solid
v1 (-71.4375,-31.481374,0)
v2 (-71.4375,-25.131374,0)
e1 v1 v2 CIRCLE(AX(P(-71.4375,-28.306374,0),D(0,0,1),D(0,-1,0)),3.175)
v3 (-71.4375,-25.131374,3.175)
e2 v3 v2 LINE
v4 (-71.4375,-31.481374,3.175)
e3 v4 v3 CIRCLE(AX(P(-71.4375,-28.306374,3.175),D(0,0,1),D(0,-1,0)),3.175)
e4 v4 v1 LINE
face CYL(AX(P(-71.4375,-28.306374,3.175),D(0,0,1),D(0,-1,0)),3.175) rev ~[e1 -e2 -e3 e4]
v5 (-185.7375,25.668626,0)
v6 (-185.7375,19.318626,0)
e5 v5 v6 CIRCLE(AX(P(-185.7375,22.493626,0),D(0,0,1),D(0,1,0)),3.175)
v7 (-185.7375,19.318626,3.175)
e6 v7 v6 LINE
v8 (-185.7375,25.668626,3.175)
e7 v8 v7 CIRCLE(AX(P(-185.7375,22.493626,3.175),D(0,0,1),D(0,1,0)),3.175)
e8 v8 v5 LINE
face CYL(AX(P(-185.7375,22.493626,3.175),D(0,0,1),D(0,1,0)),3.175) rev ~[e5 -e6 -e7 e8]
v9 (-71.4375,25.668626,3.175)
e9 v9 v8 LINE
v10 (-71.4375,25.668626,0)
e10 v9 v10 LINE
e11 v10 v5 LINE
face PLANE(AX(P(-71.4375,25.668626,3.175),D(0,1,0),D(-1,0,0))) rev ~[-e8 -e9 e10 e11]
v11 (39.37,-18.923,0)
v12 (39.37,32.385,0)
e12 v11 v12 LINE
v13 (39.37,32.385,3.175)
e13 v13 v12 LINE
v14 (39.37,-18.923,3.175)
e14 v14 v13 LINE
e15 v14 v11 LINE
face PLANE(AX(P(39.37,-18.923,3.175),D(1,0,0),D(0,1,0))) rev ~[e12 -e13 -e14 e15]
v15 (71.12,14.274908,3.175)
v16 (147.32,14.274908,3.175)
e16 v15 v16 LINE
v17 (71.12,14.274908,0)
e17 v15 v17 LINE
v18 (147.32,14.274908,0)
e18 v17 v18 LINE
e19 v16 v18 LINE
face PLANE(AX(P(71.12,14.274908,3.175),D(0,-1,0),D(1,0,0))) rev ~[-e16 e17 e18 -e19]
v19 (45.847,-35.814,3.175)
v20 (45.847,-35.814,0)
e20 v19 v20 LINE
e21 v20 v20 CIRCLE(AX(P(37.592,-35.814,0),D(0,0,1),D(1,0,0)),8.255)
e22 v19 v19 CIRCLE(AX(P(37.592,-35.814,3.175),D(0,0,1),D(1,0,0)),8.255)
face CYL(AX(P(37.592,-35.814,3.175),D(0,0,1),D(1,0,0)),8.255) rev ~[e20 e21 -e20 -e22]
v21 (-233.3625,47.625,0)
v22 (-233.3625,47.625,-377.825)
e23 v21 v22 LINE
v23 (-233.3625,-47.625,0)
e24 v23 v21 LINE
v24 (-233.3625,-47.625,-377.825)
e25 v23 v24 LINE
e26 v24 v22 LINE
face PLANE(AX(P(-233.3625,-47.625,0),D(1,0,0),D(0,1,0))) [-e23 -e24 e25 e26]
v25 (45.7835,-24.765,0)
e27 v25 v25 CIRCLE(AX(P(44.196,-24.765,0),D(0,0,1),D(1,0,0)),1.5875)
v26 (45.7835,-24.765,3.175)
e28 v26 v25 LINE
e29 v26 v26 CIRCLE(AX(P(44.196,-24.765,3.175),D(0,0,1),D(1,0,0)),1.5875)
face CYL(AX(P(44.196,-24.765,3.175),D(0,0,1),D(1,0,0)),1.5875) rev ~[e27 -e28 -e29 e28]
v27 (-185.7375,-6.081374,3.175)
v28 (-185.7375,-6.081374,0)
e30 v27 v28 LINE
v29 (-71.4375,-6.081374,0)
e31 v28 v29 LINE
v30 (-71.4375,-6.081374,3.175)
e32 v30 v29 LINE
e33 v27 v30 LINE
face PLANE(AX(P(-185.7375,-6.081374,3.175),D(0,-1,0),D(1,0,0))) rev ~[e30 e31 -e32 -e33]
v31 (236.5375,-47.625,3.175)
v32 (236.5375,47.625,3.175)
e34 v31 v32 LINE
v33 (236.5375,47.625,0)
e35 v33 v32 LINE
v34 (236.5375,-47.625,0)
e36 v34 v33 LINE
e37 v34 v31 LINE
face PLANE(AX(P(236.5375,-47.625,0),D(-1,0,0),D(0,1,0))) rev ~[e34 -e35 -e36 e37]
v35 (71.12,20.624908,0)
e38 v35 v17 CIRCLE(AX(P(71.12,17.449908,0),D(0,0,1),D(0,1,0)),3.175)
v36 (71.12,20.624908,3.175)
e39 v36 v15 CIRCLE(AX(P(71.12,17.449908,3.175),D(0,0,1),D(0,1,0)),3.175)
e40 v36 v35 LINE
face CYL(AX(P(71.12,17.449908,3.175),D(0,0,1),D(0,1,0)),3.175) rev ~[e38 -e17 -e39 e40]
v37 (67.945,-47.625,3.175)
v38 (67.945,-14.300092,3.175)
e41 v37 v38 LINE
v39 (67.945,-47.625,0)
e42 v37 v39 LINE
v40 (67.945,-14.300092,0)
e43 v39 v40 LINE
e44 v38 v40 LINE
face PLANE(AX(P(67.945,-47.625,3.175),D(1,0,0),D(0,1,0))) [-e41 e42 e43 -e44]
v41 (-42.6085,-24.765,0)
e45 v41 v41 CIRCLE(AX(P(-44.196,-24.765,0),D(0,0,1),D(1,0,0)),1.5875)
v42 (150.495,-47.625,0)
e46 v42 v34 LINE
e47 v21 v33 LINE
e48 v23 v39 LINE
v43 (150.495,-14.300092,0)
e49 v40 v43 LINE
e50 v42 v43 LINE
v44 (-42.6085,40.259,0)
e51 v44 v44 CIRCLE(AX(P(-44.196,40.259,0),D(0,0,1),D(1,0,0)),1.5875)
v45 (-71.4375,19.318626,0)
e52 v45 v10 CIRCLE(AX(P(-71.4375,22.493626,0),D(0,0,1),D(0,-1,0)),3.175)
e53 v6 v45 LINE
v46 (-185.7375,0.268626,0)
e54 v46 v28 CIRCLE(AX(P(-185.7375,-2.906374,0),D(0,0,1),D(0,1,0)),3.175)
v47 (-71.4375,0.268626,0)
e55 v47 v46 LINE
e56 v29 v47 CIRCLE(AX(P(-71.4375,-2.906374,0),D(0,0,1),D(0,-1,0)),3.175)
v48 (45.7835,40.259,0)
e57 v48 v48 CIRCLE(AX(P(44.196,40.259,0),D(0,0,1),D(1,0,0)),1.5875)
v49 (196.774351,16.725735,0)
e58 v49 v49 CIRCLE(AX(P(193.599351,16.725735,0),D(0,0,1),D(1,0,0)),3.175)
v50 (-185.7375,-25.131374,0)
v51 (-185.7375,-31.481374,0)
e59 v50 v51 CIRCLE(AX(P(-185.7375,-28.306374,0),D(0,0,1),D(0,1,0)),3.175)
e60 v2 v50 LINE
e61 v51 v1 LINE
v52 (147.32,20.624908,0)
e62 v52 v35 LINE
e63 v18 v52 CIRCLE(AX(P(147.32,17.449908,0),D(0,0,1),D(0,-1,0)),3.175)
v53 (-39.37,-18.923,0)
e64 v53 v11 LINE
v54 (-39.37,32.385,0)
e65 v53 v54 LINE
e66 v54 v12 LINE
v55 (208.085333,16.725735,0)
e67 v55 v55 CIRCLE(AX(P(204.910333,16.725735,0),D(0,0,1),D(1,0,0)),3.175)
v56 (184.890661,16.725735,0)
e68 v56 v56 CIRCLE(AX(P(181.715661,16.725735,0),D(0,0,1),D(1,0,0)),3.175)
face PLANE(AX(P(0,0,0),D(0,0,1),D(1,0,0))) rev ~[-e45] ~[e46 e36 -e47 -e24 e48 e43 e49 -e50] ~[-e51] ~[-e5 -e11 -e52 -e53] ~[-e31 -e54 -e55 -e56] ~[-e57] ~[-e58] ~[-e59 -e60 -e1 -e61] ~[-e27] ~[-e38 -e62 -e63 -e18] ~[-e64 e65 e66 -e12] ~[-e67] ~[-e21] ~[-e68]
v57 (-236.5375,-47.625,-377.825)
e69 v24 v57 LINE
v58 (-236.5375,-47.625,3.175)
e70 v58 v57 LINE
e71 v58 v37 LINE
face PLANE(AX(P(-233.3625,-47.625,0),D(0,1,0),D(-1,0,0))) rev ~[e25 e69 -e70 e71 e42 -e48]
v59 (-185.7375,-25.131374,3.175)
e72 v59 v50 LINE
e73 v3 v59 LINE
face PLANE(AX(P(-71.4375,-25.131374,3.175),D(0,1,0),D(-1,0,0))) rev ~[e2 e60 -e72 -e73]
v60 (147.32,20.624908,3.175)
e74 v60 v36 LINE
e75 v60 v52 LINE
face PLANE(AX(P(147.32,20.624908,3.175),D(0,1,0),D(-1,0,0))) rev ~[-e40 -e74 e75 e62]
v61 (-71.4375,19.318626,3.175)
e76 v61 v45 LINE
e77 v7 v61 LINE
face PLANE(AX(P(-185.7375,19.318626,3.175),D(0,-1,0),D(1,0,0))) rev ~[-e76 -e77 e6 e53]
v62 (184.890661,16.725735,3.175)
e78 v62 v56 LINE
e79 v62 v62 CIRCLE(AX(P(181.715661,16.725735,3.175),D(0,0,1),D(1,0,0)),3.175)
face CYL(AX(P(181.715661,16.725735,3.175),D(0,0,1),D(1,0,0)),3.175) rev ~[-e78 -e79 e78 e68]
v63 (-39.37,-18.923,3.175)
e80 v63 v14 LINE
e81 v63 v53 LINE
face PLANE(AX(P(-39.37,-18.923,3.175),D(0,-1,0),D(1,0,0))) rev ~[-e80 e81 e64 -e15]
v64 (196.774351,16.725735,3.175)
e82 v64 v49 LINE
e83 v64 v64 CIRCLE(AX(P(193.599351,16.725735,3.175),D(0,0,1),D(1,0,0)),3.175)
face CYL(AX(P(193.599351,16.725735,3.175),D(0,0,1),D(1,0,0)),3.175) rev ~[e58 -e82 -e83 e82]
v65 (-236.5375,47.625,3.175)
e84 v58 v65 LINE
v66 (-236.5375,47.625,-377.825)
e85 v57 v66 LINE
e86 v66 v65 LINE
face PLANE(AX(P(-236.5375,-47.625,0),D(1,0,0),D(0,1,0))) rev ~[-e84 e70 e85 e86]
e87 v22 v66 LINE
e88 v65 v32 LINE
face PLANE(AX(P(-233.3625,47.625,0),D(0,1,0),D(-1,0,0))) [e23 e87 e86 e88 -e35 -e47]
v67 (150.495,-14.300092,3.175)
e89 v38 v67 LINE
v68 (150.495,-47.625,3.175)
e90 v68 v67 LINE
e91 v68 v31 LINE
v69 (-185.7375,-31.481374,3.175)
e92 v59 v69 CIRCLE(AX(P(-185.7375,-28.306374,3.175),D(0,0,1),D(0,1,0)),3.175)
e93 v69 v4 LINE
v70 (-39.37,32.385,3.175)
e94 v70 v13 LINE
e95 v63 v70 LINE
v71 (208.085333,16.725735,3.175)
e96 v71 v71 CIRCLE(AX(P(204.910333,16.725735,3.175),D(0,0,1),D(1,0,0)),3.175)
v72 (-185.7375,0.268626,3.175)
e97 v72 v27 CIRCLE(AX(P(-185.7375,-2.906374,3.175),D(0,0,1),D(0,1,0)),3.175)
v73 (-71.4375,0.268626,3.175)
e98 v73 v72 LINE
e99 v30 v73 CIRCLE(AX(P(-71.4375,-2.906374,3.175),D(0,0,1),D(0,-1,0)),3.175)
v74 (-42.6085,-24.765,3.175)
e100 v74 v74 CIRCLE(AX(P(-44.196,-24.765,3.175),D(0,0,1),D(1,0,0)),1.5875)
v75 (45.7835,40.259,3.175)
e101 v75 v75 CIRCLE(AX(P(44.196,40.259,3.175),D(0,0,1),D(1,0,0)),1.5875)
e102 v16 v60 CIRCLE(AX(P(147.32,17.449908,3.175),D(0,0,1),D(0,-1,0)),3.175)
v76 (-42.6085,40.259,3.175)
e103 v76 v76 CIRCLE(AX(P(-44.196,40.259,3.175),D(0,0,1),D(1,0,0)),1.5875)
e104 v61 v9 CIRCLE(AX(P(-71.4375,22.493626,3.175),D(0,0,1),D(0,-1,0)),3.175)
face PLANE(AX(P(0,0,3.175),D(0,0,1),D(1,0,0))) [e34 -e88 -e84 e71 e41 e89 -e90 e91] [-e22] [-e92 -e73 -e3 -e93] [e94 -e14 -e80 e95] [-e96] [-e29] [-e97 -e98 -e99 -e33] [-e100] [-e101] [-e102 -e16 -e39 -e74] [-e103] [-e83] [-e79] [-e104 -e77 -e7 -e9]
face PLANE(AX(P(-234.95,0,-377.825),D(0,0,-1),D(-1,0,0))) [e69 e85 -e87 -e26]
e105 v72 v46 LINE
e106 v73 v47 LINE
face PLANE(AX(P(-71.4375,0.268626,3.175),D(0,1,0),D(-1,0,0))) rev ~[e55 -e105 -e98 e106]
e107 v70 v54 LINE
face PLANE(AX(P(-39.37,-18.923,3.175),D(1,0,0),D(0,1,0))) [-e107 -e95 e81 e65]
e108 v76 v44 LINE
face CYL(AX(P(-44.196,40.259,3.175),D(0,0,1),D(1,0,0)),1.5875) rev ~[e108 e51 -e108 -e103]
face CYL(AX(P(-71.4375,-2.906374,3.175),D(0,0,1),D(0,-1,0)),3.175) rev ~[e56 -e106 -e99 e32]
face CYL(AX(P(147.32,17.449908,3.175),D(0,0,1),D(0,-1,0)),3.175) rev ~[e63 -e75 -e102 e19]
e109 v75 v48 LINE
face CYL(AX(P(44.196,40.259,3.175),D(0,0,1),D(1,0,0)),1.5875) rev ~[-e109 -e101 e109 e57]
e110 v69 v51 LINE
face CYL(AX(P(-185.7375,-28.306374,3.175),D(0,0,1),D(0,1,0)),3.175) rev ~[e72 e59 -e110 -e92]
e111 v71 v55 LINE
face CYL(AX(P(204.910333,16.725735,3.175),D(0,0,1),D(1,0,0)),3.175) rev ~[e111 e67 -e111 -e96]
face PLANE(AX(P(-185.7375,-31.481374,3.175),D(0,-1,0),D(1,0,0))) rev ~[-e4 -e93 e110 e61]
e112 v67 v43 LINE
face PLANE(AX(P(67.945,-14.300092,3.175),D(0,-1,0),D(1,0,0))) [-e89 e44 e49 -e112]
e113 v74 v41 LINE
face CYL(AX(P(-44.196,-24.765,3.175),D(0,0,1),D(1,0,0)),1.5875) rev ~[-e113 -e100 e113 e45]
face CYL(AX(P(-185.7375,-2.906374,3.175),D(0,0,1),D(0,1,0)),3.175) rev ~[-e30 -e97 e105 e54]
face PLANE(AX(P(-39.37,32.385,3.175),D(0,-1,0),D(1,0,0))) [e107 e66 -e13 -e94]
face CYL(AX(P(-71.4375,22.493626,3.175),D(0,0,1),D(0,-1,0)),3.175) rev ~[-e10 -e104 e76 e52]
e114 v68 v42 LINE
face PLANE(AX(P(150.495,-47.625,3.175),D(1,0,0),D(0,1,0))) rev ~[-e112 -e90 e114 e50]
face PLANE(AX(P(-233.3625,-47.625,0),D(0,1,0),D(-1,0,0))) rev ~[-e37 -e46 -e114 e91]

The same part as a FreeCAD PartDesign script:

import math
import FreeCAD as App
import Part
import Sketcher
Q = App.Units.Quantity


def add_polygon(sketch, points):
    """Adds a closed chain of lines whose ends are joined by coincident constraints."""
    first, n = sketch.GeometryCount, len(points)
    for a, b in zip(points, points[1:] + points[:1]):
        sketch.addGeometry(Part.LineSegment(App.Vector(*a, 0), App.Vector(*b, 0)), False)
    for i in range(n):
        sketch.addConstraint(Sketcher.Constraint("Coincident", first + i, 2, first + (i + 1) % n, 1))

doc = App.newDocument("Part")
body = doc.addObject("PartDesign::Body", "Body")

sketch1 = body.newObject("Sketcher::SketchObject", "Sketch")
sketch1.AttachmentSupport = (doc.getObject("XY_Plane"), [""])
sketch1.MapMode = "FlatFace"
add_polygon(sketch1, [(-237, 48), (-237, -48), (237, -48), (237, 48)])
sketch1.addConstraint([
    Sketcher.Constraint("Vertical", 0),
    Sketcher.Constraint("Horizontal", 1),
    Sketcher.Constraint("Vertical", 2),
    Sketcher.Constraint("Horizontal", 3),
    Sketcher.Constraint("Symmetric", 0, 2, 2, 2, -1, 1),
    Sketcher.Constraint("DistanceY", 0, 2, 0, 1, Q("3.75 in")),
    Sketcher.Constraint("DistanceX", 1, 1, 1, 2, Q("18.625 in")),
])
pad1 = body.newObject("PartDesign::Pad", "Pad")
pad1.Profile = sketch1
pad1.Length = Q("0.125 in")

sketch2 = body.newObject("Sketcher::SketchObject", "Sketch001")
sketch2.AttachmentSupport = (doc.getObject("XY_Plane"), [""])
sketch2.MapMode = "FlatFace"
sketch2.AttachmentOffset = App.Placement(App.Vector(0, 0, 0.125 * 25.4), App.Rotation())
add_polygon(sketch2, [(-39, 32), (-39, -19), (39, -19), (39, 32)])
sketch2.addConstraint([
    Sketcher.Constraint("Vertical", 0),
    Sketcher.Constraint("Horizontal", 1),
    Sketcher.Constraint("Vertical", 2),
    Sketcher.Constraint("Horizontal", 3),
    Sketcher.Constraint("DistanceX", 1, 1, 1, 2, Q("3.1 in")),
    Sketcher.Constraint("DistanceY", 0, 2, 0, 1, Q("2.02 in")),
    Sketcher.Constraint("DistanceX", 0, 2, -1, 1, Q("1.55 in")),
    Sketcher.Constraint("DistanceY", 0, 2, -1, 1, Q("0.745 in")),
])
pocket1 = body.newObject("PartDesign::Pocket", "Pocket")
pocket1.Profile = sketch2
pocket1.Type = "ThroughAll"

sketch3 = body.newObject("Sketcher::SketchObject", "Sketch002")
sketch3.AttachmentSupport = (doc.getObject("XY_Plane"), [""])
sketch3.MapMode = "FlatFace"
sketch3.AttachmentOffset = App.Placement(App.Vector(0, 0, 0.125 * 25.4), App.Rotation())
sketch3.addGeometry(Part.Circle(App.Vector(38, -36, 0), App.Vector(0, 0, 1), 8), False)
sketch3.addConstraint([
    Sketcher.Constraint("Diameter", 0, Q("0.65 in")),
    Sketcher.Constraint("DistanceX", -1, 1, 0, 3, Q("1.48 in")),
    Sketcher.Constraint("DistanceY", 0, 3, -1, 1, Q("1.41 in")),
])
pocket2 = body.newObject("PartDesign::Pocket", "Pocket001")
pocket2.Profile = sketch3
pocket2.Type = "ThroughAll"

sketch4 = body.newObject("Sketcher::SketchObject", "Sketch003")
sketch4.AttachmentSupport = (doc.getObject("XY_Plane"), [""])
sketch4.MapMode = "FlatFace"
sketch4.AttachmentOffset = App.Placement(App.Vector(0, 0, 0.125 * 25.4), App.Rotation())
sketch4.addGeometry([
    Part.Circle(App.Vector(-44.2, 40.3, 0), App.Vector(0, 0, 1), 1.6),
    Part.Circle(App.Vector(44.2, 40.3, 0), App.Vector(0, 0, 1), 1.6),
    Part.Circle(App.Vector(-44.2, -24.8, 0), App.Vector(0, 0, 1), 1.6),
    Part.Circle(App.Vector(44.2, -24.8, 0), App.Vector(0, 0, 1), 1.6),
], False)
sketch4.addConstraint([
    Sketcher.Constraint("Equal", 0, 1),
    Sketcher.Constraint("Equal", 1, 2),
    Sketcher.Constraint("Equal", 2, 3),
    Sketcher.Constraint("Symmetric", 0, 3, 1, 3, -2),
    Sketcher.Constraint("Symmetric", 2, 3, 3, 3, -2),
    Sketcher.Constraint("Vertical", 0, 3, 2, 3),
    Sketcher.Constraint("Diameter", 0, Q("0.125 in")),
    Sketcher.Constraint("DistanceX", 0, 3, -1, 1, Q("1.74 in")),
    Sketcher.Constraint("DistanceY", 2, 3, 0, 3, Q("2.56 in")),
    Sketcher.Constraint("DistanceY", -1, 1, 0, 3, Q("1.585 in")),
])
pocket3 = body.newObject("PartDesign::Pocket", "Pocket002")
pocket3.Profile = sketch4
pocket3.Type = "ThroughAll"

sketch5 = body.newObject("Sketcher::SketchObject", "Sketch004")
sketch5.AttachmentSupport = (doc.getObject("XY_Plane"), [""])
sketch5.MapMode = "FlatFace"
add_polygon(sketch5, [(-233.4, 47.6), (-233.4, -47.6), (-236.5, -47.6), (-236.5, 47.6)])
sketch5.addConstraint([
    Sketcher.Constraint("Vertical", 0),
    Sketcher.Constraint("Horizontal", 1),
    Sketcher.Constraint("Vertical", 2),
    Sketcher.Constraint("Horizontal", 3),
    Sketcher.Constraint("DistanceY", 0, 2, 0, 1, Q("3.75 in")),
    Sketcher.Constraint("DistanceX", 1, 2, 1, 1, Q("0.125 in")),
    Sketcher.Constraint("DistanceX", 0, 2, -1, 1, Q("9.1875 in")),
    Sketcher.Constraint("DistanceY", 0, 2, -1, 1, Q("1.875 in")),
])
pad2 = body.newObject("PartDesign::Pad", "Pad001")
pad2.Profile = sketch5
pad2.Length = Q("14.875 in")
pad2.Reversed = True

sketch6 = body.newObject("Sketcher::SketchObject", "Sketch005")
sketch6.AttachmentSupport = (doc.getObject("XY_Plane"), [""])
sketch6.MapMode = "FlatFace"
sketch6.AttachmentOffset = App.Placement(App.Vector(0, 0, 0.125 * 25.4), App.Rotation())
add_polygon(sketch6, [(67.9, -14.3), (67.9, -47.6), (150.5, -47.6), (150.5, -14.3)])
sketch6.addGeometry(Part.LineSegment(App.Vector(71.1, 14.3, 0), App.Vector(147.3, 14.3, 0)), False)
sketch6.addGeometry(Part.ArcOfCircle(Part.Circle(App.Vector(147.3, 17.4, 0), App.Vector(0, 0, 1), 3.2), math.radians(-90), math.radians(90)), False)
sketch6.addGeometry(Part.LineSegment(App.Vector(147.3, 20.6, 0), App.Vector(71.1, 20.6, 0)), False)
sketch6.addGeometry(Part.ArcOfCircle(Part.Circle(App.Vector(71.1, 17.4, 0), App.Vector(0, 0, 1), 3.2), math.radians(90), math.radians(270)), False)
sketch6.addGeometry(Part.LineSegment(App.Vector(-185.7, 19.3, 0), App.Vector(-71.4, 19.3, 0)), False)
sketch6.addGeometry(Part.ArcOfCircle(Part.Circle(App.Vector(-71.4, 22.5, 0), App.Vector(0, 0, 1), 3.2), math.radians(-90), math.radians(90)), False)
sketch6.addGeometry(Part.LineSegment(App.Vector(-71.4, 25.7, 0), App.Vector(-185.7, 25.7, 0)), False)
sketch6.addGeometry(Part.ArcOfCircle(Part.Circle(App.Vector(-185.7, 22.5, 0), App.Vector(0, 0, 1), 3.2), math.radians(90), math.radians(270)), False)
sketch6.addGeometry(Part.LineSegment(App.Vector(-185.7, -6.1, 0), App.Vector(-71.4, -6.1, 0)), False)
sketch6.addGeometry(Part.ArcOfCircle(Part.Circle(App.Vector(-71.4, -2.9, 0), App.Vector(0, 0, 1), 3.2), math.radians(-90), math.radians(90)), False)
sketch6.addGeometry(Part.LineSegment(App.Vector(-71.4, 0.3, 0), App.Vector(-185.7, 0.3, 0)), False)
sketch6.addGeometry(Part.ArcOfCircle(Part.Circle(App.Vector(-185.7, -2.9, 0), App.Vector(0, 0, 1), 3.2), math.radians(90), math.radians(270)), False)
sketch6.addGeometry(Part.LineSegment(App.Vector(-185.7, -31.5, 0), App.Vector(-71.4, -31.5, 0)), False)
sketch6.addGeometry(Part.ArcOfCircle(Part.Circle(App.Vector(-71.4, -28.3, 0), App.Vector(0, 0, 1), 3.2), math.radians(-90), math.radians(90)), False)
sketch6.addGeometry(Part.LineSegment(App.Vector(-71.4, -25.1, 0), App.Vector(-185.7, -25.1, 0)), False)
sketch6.addGeometry(Part.ArcOfCircle(Part.Circle(App.Vector(-185.7, -28.3, 0), App.Vector(0, 0, 1), 3.2), math.radians(90), math.radians(270)), False)
sketch6.addConstraint([
    Sketcher.Constraint("Tangent", 4, 2, 5, 1),
    Sketcher.Constraint("Tangent", 5, 2, 6, 1),
    Sketcher.Constraint("Tangent", 6, 2, 7, 1),
    Sketcher.Constraint("Tangent", 7, 2, 4, 1),
    Sketcher.Constraint("Tangent", 8, 2, 9, 1),
    Sketcher.Constraint("Tangent", 9, 2, 10, 1),
    Sketcher.Constraint("Tangent", 10, 2, 11, 1),
    Sketcher.Constraint("Tangent", 11, 2, 8, 1),
    Sketcher.Constraint("Tangent", 12, 2, 13, 1),
    Sketcher.Constraint("Tangent", 13, 2, 14, 1),
    Sketcher.Constraint("Tangent", 14, 2, 15, 1),
    Sketcher.Constraint("Tangent", 15, 2, 12, 1),
    Sketcher.Constraint("Tangent", 16, 2, 17, 1),
    Sketcher.Constraint("Tangent", 17, 2, 18, 1),
    Sketcher.Constraint("Tangent", 18, 2, 19, 1),
    Sketcher.Constraint("Tangent", 19, 2, 16, 1),
    Sketcher.Constraint("Vertical", 0),
    Sketcher.Constraint("Horizontal", 1),
    Sketcher.Constraint("Vertical", 2),
    Sketcher.Constraint("Horizontal", 3),
    Sketcher.Constraint("Horizontal", 4),
    Sketcher.Constraint("Horizontal", 6),
    Sketcher.Constraint("Horizontal", 8),
    Sketcher.Constraint("Horizontal", 10),
    Sketcher.Constraint("Horizontal", 12),
    Sketcher.Constraint("Horizontal", 14),
    Sketcher.Constraint("Horizontal", 16),
    Sketcher.Constraint("Horizontal", 18),
    Sketcher.Constraint("Equal", 7, 9),
    Sketcher.Constraint("Equal", 11, 13),
    Sketcher.Constraint("Equal", 15, 17),
    Sketcher.Constraint("Vertical", 9, 3, 13, 3),
    Sketcher.Constraint("Vertical", 11, 3, 15, 3),
    Sketcher.Constraint("Vertical", 13, 3, 17, 3),
    Sketcher.Constraint("Vertical", 15, 3, 19, 3),
    Sketcher.Constraint("DistanceX", 4, 1, 4, 2, Q("3 in")),
    Sketcher.Constraint("DistanceX", 8, 1, 8, 2, Q("4.5 in")),
    Sketcher.Constraint("Radius", 5, Q("0.125 in")),
    Sketcher.Constraint("DistanceY", 13, 3, 9, 3, Q("1 in")),
    Sketcher.Constraint("DistanceY", 17, 3, 13, 3, Q("1 in")),
    Sketcher.Constraint("DistanceX", 1, 1, 1, 2, Q("3.25 in")),
    Sketcher.Constraint("DistanceX", -1, 1, 5, 3, Q("5.8 in")),
    Sketcher.Constraint("DistanceY", 2, 2, 5, 3, Q("1.25 in")),
    Sketcher.Constraint("DistanceX", 9, 3, -1, 1, Q("2.8125 in")),
    Sketcher.Constraint("DistanceX", -1, 1, 0, 2, Q("2.675 in")),
    Sketcher.Constraint("DistanceY", 0, 2, -1, 1, Q("1.875 in")),
    Sketcher.Constraint("DistanceY", 0, 2, 0, 1, 33.324908),
    Sketcher.Constraint("DistanceY", -1, 1, 9, 3, 22.493626),
])
pocket4 = body.newObject("PartDesign::Pocket", "Pocket003")
pocket4.Profile = sketch6
pocket4.Length = Q("1.16 in")

sketch7 = body.newObject("Sketcher::SketchObject", "Sketch006")
sketch7.AttachmentSupport = (doc.getObject("XY_Plane"), [""])
sketch7.MapMode = "FlatFace"
sketch7.AttachmentOffset = App.Placement(App.Vector(0, 0, 0.125 * 25.4), App.Rotation())
sketch7.addGeometry([
    Part.Circle(App.Vector(181.7, 16.7, 0), App.Vector(0, 0, 1), 3.2),
    Part.Circle(App.Vector(193.6, 16.7, 0), App.Vector(0, 0, 1), 3.2),
    Part.Circle(App.Vector(204.9, 16.7, 0), App.Vector(0, 0, 1), 3.2),
], False)
sketch7.addConstraint([
    Sketcher.Constraint("Equal", 0, 1),
    Sketcher.Constraint("Equal", 1, 2),
    Sketcher.Constraint("Horizontal", 0, 3, 1, 3),
    Sketcher.Constraint("Horizontal", 1, 3, 2, 3),
    Sketcher.Constraint("Diameter", 0, Q("0.25 in")),
    Sketcher.Constraint("DistanceX", -1, 1, 0, 3, 181.715661),
    Sketcher.Constraint("DistanceX", -1, 1, 1, 3, 193.599351),
    Sketcher.Constraint("DistanceX", 1, 3, 2, 3, 11.310982),
    Sketcher.Constraint("DistanceY", -1, 1, 0, 3, 16.725735),
])
pocket5 = body.newObject("PartDesign::Pocket", "Pocket004")
pocket5.Profile = sketch7
pocket5.Type = "ThroughAll"

doc.recompute()
